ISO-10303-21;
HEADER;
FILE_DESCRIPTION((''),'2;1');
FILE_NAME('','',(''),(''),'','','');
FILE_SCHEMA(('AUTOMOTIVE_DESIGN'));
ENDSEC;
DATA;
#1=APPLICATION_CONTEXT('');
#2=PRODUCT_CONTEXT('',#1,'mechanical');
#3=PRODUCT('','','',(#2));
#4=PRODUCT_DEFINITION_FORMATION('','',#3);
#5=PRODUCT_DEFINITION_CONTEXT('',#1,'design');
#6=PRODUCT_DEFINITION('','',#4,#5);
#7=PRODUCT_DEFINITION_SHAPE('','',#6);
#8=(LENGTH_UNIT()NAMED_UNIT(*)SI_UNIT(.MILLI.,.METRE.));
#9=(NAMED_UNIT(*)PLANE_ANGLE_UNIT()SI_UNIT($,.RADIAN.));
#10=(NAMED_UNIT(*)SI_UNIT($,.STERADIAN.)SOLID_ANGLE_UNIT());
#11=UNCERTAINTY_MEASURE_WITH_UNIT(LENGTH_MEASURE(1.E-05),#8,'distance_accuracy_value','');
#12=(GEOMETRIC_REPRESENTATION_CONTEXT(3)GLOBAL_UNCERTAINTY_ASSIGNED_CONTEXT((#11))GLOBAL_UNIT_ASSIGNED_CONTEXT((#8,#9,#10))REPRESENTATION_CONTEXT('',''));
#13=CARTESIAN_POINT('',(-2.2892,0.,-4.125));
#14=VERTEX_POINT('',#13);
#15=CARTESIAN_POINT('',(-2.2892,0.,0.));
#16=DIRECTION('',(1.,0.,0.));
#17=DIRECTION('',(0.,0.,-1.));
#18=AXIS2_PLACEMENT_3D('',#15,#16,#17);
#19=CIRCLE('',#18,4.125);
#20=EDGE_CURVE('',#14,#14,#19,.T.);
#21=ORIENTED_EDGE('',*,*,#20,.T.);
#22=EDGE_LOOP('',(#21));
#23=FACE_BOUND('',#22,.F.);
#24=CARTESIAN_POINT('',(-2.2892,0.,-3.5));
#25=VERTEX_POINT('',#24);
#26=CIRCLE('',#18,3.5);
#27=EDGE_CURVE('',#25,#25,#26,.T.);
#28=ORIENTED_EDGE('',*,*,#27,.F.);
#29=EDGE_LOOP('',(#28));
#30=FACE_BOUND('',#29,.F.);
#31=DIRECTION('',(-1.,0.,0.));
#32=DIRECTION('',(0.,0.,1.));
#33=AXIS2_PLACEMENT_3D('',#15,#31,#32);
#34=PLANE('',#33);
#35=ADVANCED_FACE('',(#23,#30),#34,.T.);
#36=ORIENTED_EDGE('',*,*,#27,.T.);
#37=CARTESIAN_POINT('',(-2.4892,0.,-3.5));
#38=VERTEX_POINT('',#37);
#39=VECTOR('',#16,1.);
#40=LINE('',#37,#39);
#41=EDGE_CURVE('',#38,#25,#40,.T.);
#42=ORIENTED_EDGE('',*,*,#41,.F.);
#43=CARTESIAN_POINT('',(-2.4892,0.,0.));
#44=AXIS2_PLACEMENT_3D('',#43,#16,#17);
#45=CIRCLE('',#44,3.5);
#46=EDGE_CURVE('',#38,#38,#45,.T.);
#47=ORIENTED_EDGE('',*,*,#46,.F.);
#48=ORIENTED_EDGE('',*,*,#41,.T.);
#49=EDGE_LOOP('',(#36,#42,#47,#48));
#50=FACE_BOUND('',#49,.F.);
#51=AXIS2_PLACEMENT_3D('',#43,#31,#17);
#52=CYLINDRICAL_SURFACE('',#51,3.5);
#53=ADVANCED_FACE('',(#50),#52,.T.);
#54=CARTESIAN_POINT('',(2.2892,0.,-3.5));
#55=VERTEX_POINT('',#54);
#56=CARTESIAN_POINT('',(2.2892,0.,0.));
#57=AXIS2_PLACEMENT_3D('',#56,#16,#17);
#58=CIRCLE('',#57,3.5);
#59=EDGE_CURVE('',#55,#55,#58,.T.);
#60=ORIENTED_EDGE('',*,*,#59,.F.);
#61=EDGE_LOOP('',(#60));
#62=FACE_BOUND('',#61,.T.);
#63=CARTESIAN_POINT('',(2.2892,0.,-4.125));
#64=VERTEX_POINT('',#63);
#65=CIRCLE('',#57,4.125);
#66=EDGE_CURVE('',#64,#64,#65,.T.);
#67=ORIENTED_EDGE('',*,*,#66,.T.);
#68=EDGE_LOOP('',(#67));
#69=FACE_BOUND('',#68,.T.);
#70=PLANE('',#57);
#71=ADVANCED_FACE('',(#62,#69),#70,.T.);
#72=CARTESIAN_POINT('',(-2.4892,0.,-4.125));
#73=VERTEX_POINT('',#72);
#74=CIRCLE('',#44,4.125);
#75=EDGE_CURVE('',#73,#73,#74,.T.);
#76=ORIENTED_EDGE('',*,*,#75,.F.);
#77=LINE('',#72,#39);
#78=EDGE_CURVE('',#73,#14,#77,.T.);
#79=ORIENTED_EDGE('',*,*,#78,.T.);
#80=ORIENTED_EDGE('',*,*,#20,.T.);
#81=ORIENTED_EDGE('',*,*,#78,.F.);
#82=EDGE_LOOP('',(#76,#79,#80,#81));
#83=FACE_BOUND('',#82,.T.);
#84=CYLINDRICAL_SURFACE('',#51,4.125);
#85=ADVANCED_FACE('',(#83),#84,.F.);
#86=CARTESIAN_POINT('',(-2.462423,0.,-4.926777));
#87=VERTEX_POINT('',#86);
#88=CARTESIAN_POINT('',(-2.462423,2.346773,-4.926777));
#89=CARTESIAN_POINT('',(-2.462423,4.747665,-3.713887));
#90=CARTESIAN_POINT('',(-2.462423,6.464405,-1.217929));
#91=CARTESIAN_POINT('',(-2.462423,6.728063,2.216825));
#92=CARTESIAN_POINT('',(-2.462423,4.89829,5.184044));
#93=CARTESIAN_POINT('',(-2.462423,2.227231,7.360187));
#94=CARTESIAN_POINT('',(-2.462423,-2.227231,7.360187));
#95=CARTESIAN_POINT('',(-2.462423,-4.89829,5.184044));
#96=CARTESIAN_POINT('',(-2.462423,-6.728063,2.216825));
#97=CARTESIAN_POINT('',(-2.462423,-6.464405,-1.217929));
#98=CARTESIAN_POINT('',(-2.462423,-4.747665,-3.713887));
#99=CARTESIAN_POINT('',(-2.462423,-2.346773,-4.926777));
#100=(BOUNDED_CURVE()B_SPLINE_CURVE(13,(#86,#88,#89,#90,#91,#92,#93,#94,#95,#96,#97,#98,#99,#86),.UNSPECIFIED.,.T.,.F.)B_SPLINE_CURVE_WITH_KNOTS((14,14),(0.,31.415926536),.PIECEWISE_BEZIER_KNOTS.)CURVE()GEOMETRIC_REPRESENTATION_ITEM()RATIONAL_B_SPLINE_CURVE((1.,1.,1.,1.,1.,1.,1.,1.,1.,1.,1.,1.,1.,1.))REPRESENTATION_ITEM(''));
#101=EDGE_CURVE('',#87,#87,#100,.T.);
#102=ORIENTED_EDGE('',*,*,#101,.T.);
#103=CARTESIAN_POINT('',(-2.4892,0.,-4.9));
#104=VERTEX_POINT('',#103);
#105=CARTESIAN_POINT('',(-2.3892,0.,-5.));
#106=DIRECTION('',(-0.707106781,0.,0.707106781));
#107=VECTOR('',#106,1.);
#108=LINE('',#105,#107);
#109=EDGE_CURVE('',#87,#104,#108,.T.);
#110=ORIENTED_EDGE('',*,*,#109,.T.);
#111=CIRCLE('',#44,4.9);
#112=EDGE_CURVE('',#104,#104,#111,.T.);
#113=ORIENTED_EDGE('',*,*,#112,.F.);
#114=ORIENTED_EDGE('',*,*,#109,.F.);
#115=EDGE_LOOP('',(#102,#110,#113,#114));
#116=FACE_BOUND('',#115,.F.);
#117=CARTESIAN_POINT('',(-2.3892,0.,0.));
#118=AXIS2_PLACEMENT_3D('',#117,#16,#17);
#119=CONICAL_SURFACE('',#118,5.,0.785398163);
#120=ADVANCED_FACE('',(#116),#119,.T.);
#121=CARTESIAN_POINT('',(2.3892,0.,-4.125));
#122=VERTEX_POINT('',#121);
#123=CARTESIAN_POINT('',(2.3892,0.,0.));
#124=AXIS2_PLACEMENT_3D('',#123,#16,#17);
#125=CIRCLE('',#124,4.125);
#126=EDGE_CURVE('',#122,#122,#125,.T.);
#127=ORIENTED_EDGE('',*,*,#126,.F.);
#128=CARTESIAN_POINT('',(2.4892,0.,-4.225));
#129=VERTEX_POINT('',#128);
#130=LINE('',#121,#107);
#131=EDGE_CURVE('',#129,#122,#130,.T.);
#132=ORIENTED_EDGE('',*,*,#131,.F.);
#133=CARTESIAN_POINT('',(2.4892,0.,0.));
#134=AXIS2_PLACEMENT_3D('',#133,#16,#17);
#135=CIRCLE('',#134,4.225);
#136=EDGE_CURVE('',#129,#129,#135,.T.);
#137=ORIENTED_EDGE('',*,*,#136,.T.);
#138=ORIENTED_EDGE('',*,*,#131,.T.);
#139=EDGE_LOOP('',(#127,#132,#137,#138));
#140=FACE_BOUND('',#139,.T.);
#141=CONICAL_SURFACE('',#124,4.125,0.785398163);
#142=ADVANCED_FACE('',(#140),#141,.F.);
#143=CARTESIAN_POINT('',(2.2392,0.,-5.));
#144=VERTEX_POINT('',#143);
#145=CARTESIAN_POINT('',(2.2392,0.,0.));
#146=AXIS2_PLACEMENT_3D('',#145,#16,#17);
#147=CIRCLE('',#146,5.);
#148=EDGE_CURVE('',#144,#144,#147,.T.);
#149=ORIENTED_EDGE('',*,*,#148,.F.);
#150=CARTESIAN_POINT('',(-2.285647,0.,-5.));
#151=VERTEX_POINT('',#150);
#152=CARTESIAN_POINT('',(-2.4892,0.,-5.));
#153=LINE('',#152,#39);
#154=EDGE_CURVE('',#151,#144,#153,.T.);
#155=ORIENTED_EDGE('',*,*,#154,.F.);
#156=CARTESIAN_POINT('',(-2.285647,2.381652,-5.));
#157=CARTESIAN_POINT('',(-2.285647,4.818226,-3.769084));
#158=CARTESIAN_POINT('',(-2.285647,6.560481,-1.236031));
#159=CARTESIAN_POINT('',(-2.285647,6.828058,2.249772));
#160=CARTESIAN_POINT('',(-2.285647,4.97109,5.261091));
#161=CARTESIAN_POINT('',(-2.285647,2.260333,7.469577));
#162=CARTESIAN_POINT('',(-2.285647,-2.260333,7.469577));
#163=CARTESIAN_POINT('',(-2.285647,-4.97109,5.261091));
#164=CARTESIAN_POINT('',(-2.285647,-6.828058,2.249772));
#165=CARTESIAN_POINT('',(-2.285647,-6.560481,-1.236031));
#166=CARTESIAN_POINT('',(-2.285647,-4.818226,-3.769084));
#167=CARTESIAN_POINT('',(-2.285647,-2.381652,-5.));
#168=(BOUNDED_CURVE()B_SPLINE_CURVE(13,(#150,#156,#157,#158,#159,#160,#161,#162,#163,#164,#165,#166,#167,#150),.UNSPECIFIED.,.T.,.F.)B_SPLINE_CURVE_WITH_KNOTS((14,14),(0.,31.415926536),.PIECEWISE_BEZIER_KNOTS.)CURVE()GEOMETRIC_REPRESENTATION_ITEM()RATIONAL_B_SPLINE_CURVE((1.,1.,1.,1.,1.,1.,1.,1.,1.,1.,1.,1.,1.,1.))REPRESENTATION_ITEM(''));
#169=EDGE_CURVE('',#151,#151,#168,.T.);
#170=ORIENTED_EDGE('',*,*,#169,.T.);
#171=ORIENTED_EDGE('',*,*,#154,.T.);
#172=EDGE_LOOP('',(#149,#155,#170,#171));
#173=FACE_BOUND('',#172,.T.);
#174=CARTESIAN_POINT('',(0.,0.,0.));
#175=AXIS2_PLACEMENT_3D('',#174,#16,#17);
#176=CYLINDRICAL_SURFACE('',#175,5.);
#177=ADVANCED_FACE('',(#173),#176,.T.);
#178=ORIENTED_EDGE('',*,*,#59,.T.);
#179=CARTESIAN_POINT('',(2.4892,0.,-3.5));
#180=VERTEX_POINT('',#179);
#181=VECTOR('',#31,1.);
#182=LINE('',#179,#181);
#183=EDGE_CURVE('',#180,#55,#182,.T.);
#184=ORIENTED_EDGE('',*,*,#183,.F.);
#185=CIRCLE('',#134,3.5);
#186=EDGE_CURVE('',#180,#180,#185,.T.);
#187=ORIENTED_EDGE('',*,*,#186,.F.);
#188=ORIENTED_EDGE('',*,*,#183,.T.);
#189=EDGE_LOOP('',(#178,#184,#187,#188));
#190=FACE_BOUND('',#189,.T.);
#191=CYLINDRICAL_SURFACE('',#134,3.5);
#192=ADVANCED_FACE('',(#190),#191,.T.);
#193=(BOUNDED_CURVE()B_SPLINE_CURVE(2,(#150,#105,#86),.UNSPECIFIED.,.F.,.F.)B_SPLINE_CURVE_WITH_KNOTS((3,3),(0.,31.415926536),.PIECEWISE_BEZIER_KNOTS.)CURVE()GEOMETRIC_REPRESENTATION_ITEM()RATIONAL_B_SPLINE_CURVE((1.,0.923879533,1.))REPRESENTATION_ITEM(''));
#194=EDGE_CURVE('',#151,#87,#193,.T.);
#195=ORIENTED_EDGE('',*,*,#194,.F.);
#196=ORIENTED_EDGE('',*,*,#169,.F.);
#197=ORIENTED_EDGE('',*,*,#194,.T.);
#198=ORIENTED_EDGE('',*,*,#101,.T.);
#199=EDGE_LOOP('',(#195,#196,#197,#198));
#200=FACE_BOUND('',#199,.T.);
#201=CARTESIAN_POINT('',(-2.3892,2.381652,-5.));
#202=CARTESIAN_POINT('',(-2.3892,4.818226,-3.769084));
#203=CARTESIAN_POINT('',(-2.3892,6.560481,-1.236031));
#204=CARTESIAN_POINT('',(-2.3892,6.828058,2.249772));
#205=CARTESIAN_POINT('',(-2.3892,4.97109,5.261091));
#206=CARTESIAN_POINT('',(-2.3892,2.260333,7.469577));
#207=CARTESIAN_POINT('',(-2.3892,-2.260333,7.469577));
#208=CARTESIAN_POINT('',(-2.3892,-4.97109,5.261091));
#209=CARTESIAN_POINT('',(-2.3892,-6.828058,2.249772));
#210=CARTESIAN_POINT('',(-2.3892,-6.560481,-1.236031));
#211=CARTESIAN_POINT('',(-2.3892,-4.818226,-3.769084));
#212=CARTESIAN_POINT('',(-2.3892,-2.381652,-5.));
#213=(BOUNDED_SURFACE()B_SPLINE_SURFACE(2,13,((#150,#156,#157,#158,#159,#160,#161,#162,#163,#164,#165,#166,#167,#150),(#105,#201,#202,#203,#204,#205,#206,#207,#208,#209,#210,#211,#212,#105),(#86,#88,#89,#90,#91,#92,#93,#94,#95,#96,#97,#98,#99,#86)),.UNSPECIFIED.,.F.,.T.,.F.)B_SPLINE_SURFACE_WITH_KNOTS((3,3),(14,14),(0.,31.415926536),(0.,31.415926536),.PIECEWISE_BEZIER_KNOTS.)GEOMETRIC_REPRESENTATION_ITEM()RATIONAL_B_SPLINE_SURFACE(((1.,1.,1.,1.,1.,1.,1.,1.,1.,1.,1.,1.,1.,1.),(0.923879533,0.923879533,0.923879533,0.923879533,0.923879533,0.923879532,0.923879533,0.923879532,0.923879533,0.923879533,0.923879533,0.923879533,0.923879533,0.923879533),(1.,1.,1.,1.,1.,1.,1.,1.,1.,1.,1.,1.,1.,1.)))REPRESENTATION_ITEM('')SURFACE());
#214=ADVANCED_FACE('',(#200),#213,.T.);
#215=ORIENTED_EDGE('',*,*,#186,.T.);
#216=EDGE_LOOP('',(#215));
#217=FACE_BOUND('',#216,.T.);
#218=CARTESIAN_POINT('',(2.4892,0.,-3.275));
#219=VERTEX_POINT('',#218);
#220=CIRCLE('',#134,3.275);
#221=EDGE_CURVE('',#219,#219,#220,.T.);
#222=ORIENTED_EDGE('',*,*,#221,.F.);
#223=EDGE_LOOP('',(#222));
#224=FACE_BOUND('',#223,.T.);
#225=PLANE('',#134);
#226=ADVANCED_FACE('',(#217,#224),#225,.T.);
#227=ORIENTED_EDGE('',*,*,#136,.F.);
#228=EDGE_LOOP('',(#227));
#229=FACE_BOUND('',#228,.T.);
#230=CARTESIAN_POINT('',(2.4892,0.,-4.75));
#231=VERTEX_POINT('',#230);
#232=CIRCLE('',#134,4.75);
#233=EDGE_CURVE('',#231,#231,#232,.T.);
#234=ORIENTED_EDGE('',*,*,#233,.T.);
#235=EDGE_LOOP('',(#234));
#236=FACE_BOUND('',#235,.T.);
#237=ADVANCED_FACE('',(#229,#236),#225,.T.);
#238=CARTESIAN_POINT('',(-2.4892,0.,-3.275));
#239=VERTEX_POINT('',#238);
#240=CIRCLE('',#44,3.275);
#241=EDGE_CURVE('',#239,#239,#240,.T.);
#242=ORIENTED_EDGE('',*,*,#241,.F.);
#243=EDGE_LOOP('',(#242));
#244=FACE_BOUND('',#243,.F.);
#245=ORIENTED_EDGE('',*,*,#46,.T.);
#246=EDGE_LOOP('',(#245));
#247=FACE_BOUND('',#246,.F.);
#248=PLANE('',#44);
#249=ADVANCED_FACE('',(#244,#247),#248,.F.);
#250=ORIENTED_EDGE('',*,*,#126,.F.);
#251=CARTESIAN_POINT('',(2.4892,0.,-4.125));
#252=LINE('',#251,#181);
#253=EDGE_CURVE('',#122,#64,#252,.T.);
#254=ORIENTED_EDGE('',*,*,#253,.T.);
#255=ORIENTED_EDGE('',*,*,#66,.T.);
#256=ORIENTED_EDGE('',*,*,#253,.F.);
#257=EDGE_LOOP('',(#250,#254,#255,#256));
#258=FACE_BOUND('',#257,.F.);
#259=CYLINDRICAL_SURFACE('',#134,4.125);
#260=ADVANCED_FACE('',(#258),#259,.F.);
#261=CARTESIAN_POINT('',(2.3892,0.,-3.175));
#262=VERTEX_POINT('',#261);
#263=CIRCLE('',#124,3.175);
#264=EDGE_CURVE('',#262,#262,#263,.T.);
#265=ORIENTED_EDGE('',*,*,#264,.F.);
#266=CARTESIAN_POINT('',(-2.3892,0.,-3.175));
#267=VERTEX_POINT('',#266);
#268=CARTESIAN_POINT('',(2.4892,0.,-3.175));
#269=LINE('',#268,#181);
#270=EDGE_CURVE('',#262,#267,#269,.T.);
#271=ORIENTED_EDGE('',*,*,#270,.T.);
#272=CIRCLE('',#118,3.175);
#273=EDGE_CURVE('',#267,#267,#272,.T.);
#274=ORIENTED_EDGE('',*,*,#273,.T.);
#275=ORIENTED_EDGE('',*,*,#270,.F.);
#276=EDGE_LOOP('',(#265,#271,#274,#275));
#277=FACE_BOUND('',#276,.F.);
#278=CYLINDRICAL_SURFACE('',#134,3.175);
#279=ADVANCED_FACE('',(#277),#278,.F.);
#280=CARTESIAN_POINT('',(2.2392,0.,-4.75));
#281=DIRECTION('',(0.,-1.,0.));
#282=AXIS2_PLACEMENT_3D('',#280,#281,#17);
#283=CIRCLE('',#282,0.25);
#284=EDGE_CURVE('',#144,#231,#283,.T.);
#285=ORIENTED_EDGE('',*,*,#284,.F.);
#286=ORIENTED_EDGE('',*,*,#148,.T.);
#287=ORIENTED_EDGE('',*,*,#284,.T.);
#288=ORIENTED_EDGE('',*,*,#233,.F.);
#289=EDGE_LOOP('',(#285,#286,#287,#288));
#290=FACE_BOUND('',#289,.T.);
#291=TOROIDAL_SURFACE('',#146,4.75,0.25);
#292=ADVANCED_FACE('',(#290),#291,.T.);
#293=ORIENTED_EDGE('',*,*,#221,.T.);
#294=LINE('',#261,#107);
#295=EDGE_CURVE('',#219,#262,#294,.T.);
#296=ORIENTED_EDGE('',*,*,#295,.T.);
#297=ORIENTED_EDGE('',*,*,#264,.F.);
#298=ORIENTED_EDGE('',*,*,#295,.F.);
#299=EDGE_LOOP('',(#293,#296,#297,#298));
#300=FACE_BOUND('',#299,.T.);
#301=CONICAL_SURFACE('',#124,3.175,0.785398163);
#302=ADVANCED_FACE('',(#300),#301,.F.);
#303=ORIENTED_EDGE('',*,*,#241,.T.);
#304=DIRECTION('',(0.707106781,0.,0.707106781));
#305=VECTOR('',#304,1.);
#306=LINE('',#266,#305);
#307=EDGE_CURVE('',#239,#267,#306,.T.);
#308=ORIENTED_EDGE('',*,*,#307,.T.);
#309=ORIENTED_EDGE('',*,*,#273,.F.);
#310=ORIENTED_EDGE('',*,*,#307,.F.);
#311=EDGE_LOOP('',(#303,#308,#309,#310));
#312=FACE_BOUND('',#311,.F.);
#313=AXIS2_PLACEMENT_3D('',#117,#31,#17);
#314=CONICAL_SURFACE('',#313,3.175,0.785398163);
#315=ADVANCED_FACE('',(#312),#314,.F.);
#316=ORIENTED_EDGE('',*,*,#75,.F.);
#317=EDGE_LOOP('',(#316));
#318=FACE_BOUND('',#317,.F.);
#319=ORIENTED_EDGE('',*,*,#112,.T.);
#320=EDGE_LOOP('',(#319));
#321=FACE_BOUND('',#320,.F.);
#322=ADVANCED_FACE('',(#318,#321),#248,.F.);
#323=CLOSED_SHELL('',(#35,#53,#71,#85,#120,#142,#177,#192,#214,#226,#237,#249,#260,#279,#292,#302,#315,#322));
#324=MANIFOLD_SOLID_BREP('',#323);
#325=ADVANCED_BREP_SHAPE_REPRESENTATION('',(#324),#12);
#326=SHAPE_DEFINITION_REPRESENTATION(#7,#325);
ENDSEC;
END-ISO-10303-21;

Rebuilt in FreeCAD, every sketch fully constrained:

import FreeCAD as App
import Part
import Sketcher
from FreeCAD import Vector


def edges_at(feature, points):
    """Names of the edges that pass closest to the given points."""
    edges = feature.Shape.Edges
    near = lambda p: min(range(len(edges)), key=lambda i: edges[i].distToShape(Part.Vertex(*p))[0])
    return sorted({f"Edge{near(p) + 1}" for p in points})

doc = App.newDocument("Part")
body = doc.addObject("PartDesign::Body", "Body")

# Sketch on YZ plane
sketch1 = body.newObject("Sketcher::SketchObject", "Sketch")
sketch1.AttachmentSupport = (doc.getObject("YZ_Plane"), [""])
sketch1.MapMode = "FlatFace"
sketch1.addGeometry(Part.Circle(Vector(0, 0, 0), Vector(0, 0, 1), 5), False)
sketch1.addConstraint([
    Sketcher.Constraint("Coincident", 0, 3, -1, 1),
    Sketcher.Constraint("Diameter", 0, 10.0),
])
pad1 = body.newObject("PartDesign::Pad", "Pad")
pad1.Profile = sketch1
pad1.Length = 4.9784
pad1.Midplane = True

# Sketch on YZ plane
sketch2 = body.newObject("Sketcher::SketchObject", "Sketch001")
sketch2.AttachmentSupport = (doc.getObject("YZ_Plane"), [""])
sketch2.MapMode = "FlatFace"
sketch2.AttachmentOffset = App.Placement(Vector(0, 0, 2.4892), App.Rotation())
sketch2.addGeometry(Part.Circle(Vector(0, 0, 0), Vector(0, 0, 1), 3.2), False)
sketch2.addConstraint([
    Sketcher.Constraint("Coincident", 0, 3, -1, 1),
    Sketcher.Constraint("Diameter", 0, 6.35),
])
pocket1 = body.newObject("PartDesign::Pocket", "Pocket")
pocket1.Profile = sketch2
pocket1.Type = "ThroughAll"

# Sketch on YZ plane
sketch3 = body.newObject("Sketcher::SketchObject", "Sketch002")
sketch3.AttachmentSupport = (doc.getObject("YZ_Plane"), [""])
sketch3.MapMode = "FlatFace"
sketch3.AttachmentOffset = App.Placement(Vector(0, 0, 2.4892), App.Rotation())
sketch3.addGeometry([
    Part.Circle(Vector(0, 0, 0), Vector(0, 0, 1), 4.1),
    Part.Circle(Vector(0, 0, 0), Vector(0, 0, 1), 3.5),
], False)
sketch3.addConstraint([
    Sketcher.Constraint("Coincident", 0, 3, -1, 1),
    Sketcher.Constraint("Coincident", 1, 3, -1, 1),
    Sketcher.Constraint("Diameter", 1, 7.0),
    Sketcher.Constraint("Diameter", 0, 8.25),
])
pocket2 = body.newObject("PartDesign::Pocket", "Pocket001")
pocket2.Profile = sketch3
pocket2.Length = 0.2
doc.recompute()

mirrored = body.newObject("PartDesign::Mirrored", "Mirrored")
mirrored.Originals = [pocket2]
mirrored.MirrorPlane = (doc.getObject("YZ_Plane"), [""])
body.Tip = mirrored
doc.recompute()

chamfer = body.newObject("PartDesign::Chamfer", "Chamfer")
chamfer.Base = (mirrored, edges_at(mirrored, [
    (2.489, 0, 4.125),
    (-2.489, 0, 5),
    (-2.489, 0, 3.175),
    (2.489, 0, 3.175),
]))
chamfer.Size = 0.1
doc.recompute()

fillet = body.newObject("PartDesign::Fillet", "Fillet")
fillet.Base = (chamfer, edges_at(chamfer, [(-2.389, 0, 5), (2.489, 0, 5)]))
fillet.Radius = 0.25

doc.recompute()
